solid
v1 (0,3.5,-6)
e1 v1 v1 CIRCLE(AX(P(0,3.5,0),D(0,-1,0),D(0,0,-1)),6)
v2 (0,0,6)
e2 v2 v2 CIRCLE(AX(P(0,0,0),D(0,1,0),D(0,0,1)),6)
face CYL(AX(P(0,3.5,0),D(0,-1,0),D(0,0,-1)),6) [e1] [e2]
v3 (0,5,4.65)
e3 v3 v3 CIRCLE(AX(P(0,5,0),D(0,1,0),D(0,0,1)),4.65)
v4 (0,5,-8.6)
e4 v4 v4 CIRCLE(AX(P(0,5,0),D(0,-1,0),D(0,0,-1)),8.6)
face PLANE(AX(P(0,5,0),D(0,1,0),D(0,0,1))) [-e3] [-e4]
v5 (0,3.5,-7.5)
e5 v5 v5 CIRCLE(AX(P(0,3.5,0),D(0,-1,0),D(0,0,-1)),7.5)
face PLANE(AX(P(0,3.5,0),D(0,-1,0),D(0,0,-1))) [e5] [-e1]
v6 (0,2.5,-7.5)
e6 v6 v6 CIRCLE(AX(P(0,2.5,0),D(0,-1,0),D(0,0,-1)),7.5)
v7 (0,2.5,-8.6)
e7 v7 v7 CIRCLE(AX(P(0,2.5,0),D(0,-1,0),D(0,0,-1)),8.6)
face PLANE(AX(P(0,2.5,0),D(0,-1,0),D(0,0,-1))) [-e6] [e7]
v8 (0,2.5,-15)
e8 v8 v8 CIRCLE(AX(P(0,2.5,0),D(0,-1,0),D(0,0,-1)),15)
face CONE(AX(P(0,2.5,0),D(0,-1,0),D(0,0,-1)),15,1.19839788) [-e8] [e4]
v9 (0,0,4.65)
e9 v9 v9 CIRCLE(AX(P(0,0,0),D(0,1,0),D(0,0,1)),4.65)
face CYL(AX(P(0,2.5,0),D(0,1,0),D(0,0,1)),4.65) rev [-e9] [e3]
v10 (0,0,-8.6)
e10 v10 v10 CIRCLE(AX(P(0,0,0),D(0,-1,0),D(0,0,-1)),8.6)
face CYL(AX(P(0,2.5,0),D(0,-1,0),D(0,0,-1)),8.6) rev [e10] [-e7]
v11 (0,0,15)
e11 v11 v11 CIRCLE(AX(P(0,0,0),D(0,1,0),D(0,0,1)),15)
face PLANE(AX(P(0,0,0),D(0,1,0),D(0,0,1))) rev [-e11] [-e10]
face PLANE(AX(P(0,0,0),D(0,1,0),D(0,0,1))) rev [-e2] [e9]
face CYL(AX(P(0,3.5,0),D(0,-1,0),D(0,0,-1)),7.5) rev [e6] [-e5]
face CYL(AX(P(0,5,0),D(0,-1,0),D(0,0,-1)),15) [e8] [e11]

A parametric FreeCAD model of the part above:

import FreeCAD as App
import Part
import Sketcher
from FreeCAD import Vector
Q = App.Units.Quantity

doc = App.newDocument("Part")
body = doc.addObject("PartDesign::Body", "Body")

# Sketch on XZ plane
sketch1 = doc.addObject("Sketcher::SketchObject", "Sketch")
body.addObject(sketch1)
sketch1.AttachmentSupport = (doc.XZ_Plane, [""])
sketch1.MapMode = "FlatFace"
sketch1.addGeometry(Part.Circle(Vector(0, 0, 0), Vector(0, 0, 1), 15), False)
sketch1.addConstraint([
    Sketcher.Constraint("Coincident", 0, 3, -1, 1),
    Sketcher.Constraint("Diameter", 0, Q("30 mm")),
])
pad1 = doc.addObject("PartDesign::Pad", "Pad")
body.addObject(pad1)
pad1.Profile = sketch1
pad1.Length = 5
pad1.Reversed = True

# Sketch on XZ plane
sketch2 = doc.addObject("Sketcher::SketchObject", "Sketch001")
body.addObject(sketch2)
sketch2.AttachmentSupport = (doc.XZ_Plane, [""])
sketch2.MapMode = "FlatFace"
sketch2.addGeometry(Part.Circle(Vector(0, 0, 0), Vector(0, 0, 1), 8.6), False)
sketch2.addConstraint([
    Sketcher.Constraint("Coincident", 0, 3, -1, 1),
    Sketcher.Constraint("Diameter", 0, Q("17.2 mm")),
])
pocket1 = doc.addObject("PartDesign::Pocket", "Pocket")
body.addObject(pocket1)
pocket1.Profile = sketch2
pocket1.Length = 2.5

# Sketch on XY plane
sketch3 = doc.addObject("Sketcher::SketchObject", "Sketch002")
body.addObject(sketch3)
sketch3.AttachmentSupport = (doc.XY_Plane, [""])
sketch3.MapMode = "FlatFace"
sketch3.addGeometry([
    Part.LineSegment(Vector(15, 5, 0), Vector(8.6, 5, 0)),
    Part.LineSegment(Vector(8.6, 5, 0), Vector(15, 2.5, 0)),
    Part.LineSegment(Vector(15, 2.5, 0), Vector(15, 5, 0)),
], False)
sketch3.addConstraint([
    Sketcher.Constraint("Coincident", 0, 2, 1, 1),
    Sketcher.Constraint("Coincident", 1, 2, 2, 1),
    Sketcher.Constraint("Coincident", 2, 2, 0, 1),
    Sketcher.Constraint("Horizontal", 0),
    Sketcher.Constraint("Vertical", 2),
    Sketcher.Constraint("DistanceX", 0, 2, 0, 1, Q("6.4 mm")),
    Sketcher.Constraint("DistanceY", 2, 1, 2, 2, Q("2.5 mm")),
    Sketcher.Constraint("DistanceY", -1, 1, 0, 2, Q("5 mm")),
    Sketcher.Constraint("DistanceX", -1, 1, 1, 2, Q("15 mm")),
])
groove = doc.addObject("PartDesign::Groove", "Groove")
body.addObject(groove)
groove.Profile = sketch3
groove.ReferenceAxis = (sketch3, ["V_Axis"])
groove.Angle = 360

# Sketch on XZ plane
sketch4 = doc.addObject("Sketcher::SketchObject", "Sketch003")
body.addObject(sketch4)
sketch4.AttachmentSupport = (doc.XZ_Plane, [""])
sketch4.MapMode = "FlatFace"
sketch4.AttachmentOffset = App.Placement(Vector(0, 0, -5), App.Rotation())
sketch4.addGeometry(Part.Circle(Vector(0, 0, 0), Vector(0, 0, 1), 4.65), False)
sketch4.addConstraint([
    Sketcher.Constraint("Coincident", 0, 3, -1, 1),
    Sketcher.Constraint("Diameter", 0, Q("9.3 mm")),
])
pocket2 = doc.addObject("PartDesign::Pocket", "Pocket001")
body.addObject(pocket2)
pocket2.Profile = sketch4
pocket2.Length = 2.5
pocket2.Reversed = True

# Sketch on XZ plane
sketch5 = doc.addObject("Sketcher::SketchObject", "Sketch004")
body.addObject(sketch5)
sketch5.AttachmentSupport = (doc.XZ_Plane, [""])
sketch5.MapMode = "FlatFace"
sketch5.AttachmentOffset = App.Placement(Vector(0, 0, -2.5), App.Rotation())
sketch5.addGeometry([
    Part.Circle(Vector(0, 0, 0), Vector(0, 0, 1), 7.5),
    Part.Circle(Vector(0, 0, 0), Vector(0, 0, 1), 6),
], False)
sketch5.addConstraint([
    Sketcher.Constraint("Coincident", 0, 3, -1, 1),
    Sketcher.Constraint("Coincident", 1, 3, -1, 1),
    Sketcher.Constraint("Diameter", 0, Q("15 mm")),
    Sketcher.Constraint("Diameter", 1, Q("11.999999 mm")),
])
pocket3 = doc.addObject("PartDesign::Pocket", "Pocket002")
body.addObject(pocket3)
pocket3.Profile = sketch5
pocket3.Length = 1

# Sketch on XZ plane
sketch6 = doc.addObject("Sketcher::SketchObject", "Sketch005")
body.addObject(sketch6)
sketch6.AttachmentSupport = (doc.XZ_Plane, [""])
sketch6.MapMode = "FlatFace"
sketch6.AttachmentOffset = App.Placement(Vector(0, 0, -2.5), App.Rotation())
sketch6.addGeometry([
    Part.Circle(Vector(0, 0, 0), Vector(0, 0, 1), 6),
    Part.Circle(Vector(0, 0, 0), Vector(0, 0, 1), 4.65),
], False)
sketch6.addConstraint([
    Sketcher.Constraint("Coincident", 0, 3, -1, 1),
    Sketcher.Constraint("Coincident", 1, 3, -1, 1),
    Sketcher.Constraint("Diameter", 0, Q("12 mm")),
    Sketcher.Constraint("Diameter", 1, Q("9.3 mm")),
])
pad2 = doc.addObject("PartDesign::Pad", "Pad001")
body.addObject(pad2)
pad2.Profile = sketch6
pad2.Length = 2.5

doc.recompute()
